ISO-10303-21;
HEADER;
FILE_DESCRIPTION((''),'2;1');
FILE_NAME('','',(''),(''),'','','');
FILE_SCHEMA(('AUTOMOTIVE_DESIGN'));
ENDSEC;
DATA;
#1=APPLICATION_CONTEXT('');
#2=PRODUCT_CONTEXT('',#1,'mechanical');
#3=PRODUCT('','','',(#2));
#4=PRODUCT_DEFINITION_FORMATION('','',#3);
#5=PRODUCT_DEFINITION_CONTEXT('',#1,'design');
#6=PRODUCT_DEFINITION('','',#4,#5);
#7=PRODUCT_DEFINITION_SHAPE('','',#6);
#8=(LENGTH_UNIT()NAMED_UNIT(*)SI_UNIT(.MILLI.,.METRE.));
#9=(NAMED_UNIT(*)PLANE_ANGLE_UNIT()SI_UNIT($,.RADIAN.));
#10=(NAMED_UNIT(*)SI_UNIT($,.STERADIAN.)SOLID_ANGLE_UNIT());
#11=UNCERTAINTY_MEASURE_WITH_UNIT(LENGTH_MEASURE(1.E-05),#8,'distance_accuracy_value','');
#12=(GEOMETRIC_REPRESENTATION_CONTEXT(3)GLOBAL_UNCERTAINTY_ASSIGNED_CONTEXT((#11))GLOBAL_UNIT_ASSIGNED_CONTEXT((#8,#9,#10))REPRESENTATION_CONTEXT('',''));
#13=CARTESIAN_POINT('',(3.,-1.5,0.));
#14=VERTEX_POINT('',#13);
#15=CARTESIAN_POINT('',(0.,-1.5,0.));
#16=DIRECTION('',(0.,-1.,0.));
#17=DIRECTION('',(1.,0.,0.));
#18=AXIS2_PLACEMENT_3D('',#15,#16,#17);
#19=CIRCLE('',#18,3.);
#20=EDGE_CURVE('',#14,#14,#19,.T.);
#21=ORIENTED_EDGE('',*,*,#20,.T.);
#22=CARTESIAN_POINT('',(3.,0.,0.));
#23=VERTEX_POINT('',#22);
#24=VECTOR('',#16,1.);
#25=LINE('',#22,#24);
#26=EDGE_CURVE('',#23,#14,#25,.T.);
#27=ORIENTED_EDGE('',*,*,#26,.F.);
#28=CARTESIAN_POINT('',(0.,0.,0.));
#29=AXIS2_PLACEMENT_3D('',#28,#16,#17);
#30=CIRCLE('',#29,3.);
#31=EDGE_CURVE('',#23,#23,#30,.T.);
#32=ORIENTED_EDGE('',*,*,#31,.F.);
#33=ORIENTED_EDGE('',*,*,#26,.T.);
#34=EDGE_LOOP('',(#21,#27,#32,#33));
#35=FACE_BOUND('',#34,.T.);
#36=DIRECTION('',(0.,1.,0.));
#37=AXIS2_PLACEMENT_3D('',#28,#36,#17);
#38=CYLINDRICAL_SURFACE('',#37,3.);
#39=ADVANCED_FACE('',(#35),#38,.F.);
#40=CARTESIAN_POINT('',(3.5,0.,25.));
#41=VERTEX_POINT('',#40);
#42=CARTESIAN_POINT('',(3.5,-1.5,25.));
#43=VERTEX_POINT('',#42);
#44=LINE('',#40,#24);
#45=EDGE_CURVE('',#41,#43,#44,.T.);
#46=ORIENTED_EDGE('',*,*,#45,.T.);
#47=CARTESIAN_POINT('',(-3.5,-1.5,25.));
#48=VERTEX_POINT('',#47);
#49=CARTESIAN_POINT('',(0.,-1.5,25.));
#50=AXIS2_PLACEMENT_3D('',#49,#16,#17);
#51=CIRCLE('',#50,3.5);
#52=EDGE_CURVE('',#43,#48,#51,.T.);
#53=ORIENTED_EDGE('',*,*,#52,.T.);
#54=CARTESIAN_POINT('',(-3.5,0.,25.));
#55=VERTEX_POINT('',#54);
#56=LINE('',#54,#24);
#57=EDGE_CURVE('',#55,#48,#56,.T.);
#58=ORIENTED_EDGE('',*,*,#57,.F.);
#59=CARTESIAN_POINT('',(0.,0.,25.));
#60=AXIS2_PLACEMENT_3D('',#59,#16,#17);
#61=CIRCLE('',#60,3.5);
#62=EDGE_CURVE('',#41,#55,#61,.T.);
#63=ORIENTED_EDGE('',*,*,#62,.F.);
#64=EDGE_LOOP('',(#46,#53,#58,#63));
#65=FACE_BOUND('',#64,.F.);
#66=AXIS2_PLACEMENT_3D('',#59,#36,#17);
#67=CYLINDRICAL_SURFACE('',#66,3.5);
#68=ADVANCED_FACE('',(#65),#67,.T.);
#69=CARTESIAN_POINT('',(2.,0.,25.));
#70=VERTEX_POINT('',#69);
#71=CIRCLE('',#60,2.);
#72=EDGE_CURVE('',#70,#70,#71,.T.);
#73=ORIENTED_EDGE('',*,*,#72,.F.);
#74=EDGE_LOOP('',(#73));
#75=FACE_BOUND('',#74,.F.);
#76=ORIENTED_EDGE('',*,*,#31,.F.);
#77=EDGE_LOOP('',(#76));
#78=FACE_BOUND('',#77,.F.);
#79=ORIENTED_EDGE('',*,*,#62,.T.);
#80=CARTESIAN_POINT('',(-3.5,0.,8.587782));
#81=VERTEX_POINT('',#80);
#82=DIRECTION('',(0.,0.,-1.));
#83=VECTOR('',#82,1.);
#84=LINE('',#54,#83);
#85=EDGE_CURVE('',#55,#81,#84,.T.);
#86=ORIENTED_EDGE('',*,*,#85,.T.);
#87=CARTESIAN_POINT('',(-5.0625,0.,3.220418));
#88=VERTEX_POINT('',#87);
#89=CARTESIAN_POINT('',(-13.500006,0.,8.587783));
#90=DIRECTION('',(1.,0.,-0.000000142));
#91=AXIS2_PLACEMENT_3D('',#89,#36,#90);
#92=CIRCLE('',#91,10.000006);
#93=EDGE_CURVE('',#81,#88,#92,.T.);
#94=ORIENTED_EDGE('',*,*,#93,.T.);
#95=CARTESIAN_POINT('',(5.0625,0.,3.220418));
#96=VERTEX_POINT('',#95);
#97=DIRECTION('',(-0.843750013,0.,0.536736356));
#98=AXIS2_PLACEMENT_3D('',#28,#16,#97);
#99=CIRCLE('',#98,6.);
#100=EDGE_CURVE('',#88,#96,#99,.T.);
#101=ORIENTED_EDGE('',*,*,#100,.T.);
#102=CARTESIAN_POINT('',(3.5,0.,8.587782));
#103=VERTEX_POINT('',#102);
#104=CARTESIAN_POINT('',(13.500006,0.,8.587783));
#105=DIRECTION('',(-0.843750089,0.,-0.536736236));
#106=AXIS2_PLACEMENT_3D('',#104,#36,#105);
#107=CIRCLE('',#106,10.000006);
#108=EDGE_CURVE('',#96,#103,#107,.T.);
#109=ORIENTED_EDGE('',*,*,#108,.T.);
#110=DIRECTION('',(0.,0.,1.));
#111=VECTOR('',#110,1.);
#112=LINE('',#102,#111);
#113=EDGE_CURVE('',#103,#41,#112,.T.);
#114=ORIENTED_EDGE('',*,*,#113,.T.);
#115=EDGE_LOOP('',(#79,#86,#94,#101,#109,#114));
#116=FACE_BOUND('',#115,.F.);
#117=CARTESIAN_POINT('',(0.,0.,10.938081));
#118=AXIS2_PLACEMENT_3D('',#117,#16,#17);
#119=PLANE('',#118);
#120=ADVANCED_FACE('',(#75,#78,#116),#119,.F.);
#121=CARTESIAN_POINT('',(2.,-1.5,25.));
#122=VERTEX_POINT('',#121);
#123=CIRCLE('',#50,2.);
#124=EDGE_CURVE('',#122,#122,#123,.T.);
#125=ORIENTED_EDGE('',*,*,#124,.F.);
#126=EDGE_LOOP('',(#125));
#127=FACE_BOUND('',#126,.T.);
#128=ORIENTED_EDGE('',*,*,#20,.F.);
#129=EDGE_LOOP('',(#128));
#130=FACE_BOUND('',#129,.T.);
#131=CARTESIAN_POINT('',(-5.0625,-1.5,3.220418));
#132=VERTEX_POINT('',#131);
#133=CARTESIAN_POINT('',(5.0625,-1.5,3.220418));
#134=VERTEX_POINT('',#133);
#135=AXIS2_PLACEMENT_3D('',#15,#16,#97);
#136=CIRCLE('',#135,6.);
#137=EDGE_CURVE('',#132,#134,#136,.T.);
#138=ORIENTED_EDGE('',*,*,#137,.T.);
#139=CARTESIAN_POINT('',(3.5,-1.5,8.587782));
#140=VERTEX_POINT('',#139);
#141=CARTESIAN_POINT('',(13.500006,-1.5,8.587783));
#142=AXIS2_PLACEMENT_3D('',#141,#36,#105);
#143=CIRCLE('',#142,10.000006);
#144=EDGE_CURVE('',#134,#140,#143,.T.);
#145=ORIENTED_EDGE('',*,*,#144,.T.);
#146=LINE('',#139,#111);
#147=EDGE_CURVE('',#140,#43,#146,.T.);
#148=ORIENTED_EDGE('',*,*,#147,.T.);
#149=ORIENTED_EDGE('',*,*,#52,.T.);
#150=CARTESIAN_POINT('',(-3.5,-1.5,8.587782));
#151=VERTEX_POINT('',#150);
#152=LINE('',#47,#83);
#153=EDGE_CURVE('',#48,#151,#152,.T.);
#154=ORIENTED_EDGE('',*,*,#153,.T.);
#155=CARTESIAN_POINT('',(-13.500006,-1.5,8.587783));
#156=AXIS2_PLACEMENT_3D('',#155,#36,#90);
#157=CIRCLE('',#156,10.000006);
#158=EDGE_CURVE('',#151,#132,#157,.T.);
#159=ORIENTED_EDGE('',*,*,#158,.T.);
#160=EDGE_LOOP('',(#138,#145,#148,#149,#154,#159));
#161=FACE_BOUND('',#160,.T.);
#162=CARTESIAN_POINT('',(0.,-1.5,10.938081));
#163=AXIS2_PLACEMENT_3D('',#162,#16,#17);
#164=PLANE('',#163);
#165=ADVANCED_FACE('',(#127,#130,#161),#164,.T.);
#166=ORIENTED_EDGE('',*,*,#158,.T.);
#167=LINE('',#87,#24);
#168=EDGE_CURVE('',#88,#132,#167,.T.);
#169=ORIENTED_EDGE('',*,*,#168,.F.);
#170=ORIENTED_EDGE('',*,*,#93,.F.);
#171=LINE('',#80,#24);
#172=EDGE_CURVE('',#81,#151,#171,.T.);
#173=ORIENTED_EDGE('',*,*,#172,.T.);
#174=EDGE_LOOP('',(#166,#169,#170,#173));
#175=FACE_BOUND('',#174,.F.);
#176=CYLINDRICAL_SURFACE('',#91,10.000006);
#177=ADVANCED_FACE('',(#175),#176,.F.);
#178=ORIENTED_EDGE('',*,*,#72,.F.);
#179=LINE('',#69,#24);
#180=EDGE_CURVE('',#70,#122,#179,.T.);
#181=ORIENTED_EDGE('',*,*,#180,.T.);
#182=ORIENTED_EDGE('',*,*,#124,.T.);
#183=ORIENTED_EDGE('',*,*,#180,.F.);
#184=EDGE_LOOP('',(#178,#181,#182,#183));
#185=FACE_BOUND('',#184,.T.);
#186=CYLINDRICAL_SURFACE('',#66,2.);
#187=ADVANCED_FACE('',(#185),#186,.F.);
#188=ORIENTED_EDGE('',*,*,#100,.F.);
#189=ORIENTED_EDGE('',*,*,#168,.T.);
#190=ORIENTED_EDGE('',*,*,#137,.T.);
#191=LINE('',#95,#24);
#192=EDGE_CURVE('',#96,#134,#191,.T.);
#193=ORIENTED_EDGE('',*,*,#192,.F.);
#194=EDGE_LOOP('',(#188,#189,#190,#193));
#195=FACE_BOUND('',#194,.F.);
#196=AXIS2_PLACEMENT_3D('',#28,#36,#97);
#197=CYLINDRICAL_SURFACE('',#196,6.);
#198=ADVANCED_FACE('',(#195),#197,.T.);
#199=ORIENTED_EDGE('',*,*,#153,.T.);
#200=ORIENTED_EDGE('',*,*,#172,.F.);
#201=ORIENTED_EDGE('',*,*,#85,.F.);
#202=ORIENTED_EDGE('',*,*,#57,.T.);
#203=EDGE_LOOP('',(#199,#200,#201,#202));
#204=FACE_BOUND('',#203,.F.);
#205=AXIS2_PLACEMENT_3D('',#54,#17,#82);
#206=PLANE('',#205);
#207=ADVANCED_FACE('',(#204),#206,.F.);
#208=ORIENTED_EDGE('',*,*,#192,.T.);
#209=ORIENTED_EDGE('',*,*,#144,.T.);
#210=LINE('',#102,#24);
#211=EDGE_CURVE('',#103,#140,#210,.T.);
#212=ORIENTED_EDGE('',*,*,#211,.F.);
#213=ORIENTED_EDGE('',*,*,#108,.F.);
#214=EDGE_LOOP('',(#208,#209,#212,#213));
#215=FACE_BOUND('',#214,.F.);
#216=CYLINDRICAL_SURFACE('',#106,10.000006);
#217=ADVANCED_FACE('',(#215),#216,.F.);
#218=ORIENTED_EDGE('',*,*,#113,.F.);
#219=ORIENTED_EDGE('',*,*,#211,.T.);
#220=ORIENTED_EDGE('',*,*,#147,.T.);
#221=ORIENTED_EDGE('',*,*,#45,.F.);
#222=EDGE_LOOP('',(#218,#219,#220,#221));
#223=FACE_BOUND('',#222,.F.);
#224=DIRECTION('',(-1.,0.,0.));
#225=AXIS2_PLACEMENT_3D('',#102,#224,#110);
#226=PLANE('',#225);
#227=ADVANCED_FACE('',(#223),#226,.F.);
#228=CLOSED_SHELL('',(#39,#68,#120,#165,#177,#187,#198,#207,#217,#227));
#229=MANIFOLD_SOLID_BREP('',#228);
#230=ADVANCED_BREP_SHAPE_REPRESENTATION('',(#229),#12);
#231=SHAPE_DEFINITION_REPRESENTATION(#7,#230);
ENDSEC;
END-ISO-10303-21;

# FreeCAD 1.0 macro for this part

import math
import FreeCAD as App
import Part
import Sketcher
from FreeCAD import Vector

doc = App.newDocument("Part")
body = doc.addObject("PartDesign::Body", "Body")

sketch1 = body.newObject("Sketcher::SketchObject", "Sketch")
sketch1.AttachmentSupport = (doc.getObject("XZ_Plane"), [""])
sketch1.MapMode = "FlatFace"
sketch1.addGeometry(Part.ArcOfCircle(Part.Circle(Vector(0, 25, 0), Vector(0, 0, 1), 3.5), math.radians(0), math.radians(180)), False)
sketch1.addGeometry(Part.LineSegment(Vector(-3.5, 25, 0), Vector(-3.5, 8.6, 0)), False)
sketch1.addGeometry(Part.ArcOfCircle(Part.Circle(Vector(-13.5, 8.6, 0), Vector(0, 0, 1), 10), math.radians(-32), math.radians(0)), False)
sketch1.addGeometry(Part.ArcOfCircle(Part.Circle(Vector(0, 0, 0), Vector(0, 0, 1), 6), math.radians(148), math.radians(392)), False)
sketch1.addGeometry(Part.ArcOfCircle(Part.Circle(Vector(13.5, 8.6, 0), Vector(0, 0, 1), 10), math.radians(-180), math.radians(-148)), False)
sketch1.addGeometry(Part.LineSegment(Vector(3.5, 8.6, 0), Vector(3.5, 25, 0)), False)
sketch1.addGeometry(Part.Circle(Vector(0, 0, 0), Vector(0, 0, 1), 3), False)
sketch1.addGeometry(Part.Circle(Vector(0, 25, 0), Vector(0, 0, 1), 2), False)
sketch1.addConstraint(Sketcher.Constraint("Tangent", 0, 2, 1, 1))
sketch1.addConstraint(Sketcher.Constraint("Tangent", 1, 2, 2, 2))
sketch1.addConstraint(Sketcher.Constraint("Tangent", 2, 1, 3, 1))
sketch1.addConstraint(Sketcher.Constraint("Tangent", 3, 2, 4, 2))
sketch1.addConstraint(Sketcher.Constraint("Tangent", 4, 1, 5, 1))
sketch1.addConstraint(Sketcher.Constraint("Tangent", 5, 2, 0, 1))
sketch1.addConstraint(Sketcher.Constraint("Vertical", 1))
sketch1.addConstraint(Sketcher.Constraint("Vertical", 5))
sketch1.addConstraint(Sketcher.Constraint("Coincident", 3, 3, -1, 1))
sketch1.addConstraint(Sketcher.Constraint("Coincident", 6, 3, -1, 1))
sketch1.addConstraint(Sketcher.Constraint("Coincident", 7, 3, 0, 3))
sketch1.addConstraint(Sketcher.Constraint("Equal", 2, 4))
sketch1.addConstraint(Sketcher.Constraint("PointOnObject", 0, 3, -2))
sketch1.addConstraint(Sketcher.Constraint("Diameter", 6, 6.0))
sketch1.addConstraint(Sketcher.Constraint("Diameter", 7, 4.0))
sketch1.addConstraint(Sketcher.Constraint("Radius", 3, 6.0))
sketch1.addConstraint(Sketcher.Constraint("Radius", 0, 3.5))
sketch1.addConstraint(Sketcher.Constraint("DistanceY", -1, 1, 0, 3, 25.0))
sketch1.addConstraint(Sketcher.Constraint("Radius", 2, 10.000006))
pad1 = body.newObject("PartDesign::Pad", "Pad")
pad1.Profile = sketch1
pad1.Length = 1.5

doc.recompute()
